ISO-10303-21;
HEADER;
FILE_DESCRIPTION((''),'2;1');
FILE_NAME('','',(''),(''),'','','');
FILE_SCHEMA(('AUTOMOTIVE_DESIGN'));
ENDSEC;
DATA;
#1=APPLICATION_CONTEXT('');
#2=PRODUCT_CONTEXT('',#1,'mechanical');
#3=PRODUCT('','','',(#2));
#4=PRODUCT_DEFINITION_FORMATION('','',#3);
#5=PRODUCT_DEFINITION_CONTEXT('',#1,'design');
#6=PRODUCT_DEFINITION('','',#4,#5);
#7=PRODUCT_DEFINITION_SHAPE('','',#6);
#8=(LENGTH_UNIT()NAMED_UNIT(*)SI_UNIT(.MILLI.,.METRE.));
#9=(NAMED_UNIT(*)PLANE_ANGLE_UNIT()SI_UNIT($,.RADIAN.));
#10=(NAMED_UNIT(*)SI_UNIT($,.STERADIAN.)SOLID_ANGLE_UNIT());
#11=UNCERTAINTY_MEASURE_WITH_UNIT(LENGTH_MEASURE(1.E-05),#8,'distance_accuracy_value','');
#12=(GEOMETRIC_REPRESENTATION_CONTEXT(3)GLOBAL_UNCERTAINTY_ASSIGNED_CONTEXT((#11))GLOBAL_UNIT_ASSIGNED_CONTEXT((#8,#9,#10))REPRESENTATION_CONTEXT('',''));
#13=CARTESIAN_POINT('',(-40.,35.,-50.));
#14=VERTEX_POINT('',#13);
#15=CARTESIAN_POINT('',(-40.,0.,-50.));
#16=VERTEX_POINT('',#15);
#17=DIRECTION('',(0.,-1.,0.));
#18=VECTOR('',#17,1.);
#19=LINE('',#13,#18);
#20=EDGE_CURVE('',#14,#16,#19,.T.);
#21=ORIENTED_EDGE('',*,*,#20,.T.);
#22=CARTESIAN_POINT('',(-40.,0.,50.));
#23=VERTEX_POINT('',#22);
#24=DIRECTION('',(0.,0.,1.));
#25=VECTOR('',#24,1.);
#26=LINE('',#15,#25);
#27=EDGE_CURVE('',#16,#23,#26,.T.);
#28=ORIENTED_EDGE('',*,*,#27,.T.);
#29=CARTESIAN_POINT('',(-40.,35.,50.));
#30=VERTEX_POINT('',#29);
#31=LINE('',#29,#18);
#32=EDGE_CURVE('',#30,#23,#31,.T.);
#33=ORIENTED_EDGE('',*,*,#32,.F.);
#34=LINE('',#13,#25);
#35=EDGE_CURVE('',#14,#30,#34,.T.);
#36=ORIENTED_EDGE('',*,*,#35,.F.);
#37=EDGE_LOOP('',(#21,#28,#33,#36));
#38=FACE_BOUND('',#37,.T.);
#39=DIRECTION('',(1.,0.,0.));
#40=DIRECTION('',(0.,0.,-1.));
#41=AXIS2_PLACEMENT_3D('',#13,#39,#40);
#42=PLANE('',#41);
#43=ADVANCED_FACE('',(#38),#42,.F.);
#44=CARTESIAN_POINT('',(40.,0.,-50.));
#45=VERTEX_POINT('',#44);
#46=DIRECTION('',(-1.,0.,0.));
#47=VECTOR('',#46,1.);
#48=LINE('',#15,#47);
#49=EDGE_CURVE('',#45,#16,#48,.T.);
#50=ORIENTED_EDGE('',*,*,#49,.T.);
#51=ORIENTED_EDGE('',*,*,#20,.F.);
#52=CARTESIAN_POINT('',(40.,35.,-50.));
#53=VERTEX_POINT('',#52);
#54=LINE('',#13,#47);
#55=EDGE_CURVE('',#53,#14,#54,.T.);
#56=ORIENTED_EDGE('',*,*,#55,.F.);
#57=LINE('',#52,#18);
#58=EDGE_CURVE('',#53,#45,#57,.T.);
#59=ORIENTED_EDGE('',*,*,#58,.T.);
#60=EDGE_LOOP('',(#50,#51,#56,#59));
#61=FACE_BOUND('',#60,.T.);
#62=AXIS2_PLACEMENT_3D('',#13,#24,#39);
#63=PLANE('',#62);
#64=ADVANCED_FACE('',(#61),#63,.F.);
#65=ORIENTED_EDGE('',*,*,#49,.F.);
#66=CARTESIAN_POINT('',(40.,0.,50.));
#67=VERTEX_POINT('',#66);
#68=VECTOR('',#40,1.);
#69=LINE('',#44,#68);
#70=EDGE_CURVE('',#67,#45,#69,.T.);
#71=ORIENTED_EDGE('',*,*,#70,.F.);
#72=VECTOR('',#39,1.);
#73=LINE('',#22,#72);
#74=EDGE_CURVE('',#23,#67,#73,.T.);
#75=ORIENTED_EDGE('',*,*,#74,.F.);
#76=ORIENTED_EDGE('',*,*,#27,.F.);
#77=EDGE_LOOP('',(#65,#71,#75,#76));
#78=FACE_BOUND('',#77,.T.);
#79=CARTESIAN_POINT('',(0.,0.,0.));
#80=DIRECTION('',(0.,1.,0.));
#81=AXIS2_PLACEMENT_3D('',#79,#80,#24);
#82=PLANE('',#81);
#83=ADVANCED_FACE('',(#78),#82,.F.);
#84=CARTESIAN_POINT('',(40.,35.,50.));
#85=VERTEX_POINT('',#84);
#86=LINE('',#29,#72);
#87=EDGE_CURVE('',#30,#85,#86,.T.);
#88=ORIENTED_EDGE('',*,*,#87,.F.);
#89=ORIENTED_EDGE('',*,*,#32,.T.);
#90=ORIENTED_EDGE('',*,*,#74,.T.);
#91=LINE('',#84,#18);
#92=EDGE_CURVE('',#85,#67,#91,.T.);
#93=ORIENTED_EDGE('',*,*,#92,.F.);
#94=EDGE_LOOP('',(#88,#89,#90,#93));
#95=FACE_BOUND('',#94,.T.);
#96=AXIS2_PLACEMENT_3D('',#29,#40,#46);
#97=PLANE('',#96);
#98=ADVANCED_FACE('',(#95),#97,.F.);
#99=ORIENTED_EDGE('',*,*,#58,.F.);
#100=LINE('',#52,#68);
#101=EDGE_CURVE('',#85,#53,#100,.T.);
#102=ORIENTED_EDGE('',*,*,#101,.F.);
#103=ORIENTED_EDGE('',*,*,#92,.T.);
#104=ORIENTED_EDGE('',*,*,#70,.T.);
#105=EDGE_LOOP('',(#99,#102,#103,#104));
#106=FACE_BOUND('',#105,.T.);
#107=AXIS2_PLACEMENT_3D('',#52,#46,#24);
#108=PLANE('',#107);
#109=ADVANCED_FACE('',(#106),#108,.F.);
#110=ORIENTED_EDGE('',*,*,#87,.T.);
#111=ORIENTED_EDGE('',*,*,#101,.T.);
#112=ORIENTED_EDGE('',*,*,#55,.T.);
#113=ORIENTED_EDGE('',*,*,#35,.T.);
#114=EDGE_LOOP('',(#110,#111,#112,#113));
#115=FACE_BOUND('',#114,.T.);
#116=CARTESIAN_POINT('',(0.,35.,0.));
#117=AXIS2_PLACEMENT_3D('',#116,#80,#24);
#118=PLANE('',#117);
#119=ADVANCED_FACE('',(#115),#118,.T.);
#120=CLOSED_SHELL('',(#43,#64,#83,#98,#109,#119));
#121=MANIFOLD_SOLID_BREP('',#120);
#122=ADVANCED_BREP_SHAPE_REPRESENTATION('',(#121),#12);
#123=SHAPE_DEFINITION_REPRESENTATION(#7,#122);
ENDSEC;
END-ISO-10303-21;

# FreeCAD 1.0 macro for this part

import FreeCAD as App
import Part
import Sketcher

V = App.Vector
Q = App.Units.Quantity

doc = App.newDocument("Part")
params = doc.addObject("Spreadsheet::Sheet", "Params")
for row, (alias, value) in enumerate([
    ("sketch1_width", "80 mm"),
    ("sketch1_height", "100 mm"),
    ("pad1_length", "35 mm"),
], start=1):
    params.set(f"A{row}", alias)
    params.set(f"B{row}", "=" + value)
    params.setAlias(f"B{row}", alias)

body = doc.addObject("PartDesign::Body", "Body")

# Sketch on XZ plane
sketch1 = body.newObject("Sketcher::SketchObject", "Sketch")
sketch1.AttachmentSupport = (doc.getObject("XZ_Plane"), [""])
sketch1.MapMode = "FlatFace"
sketch1.addGeometry([
    Part.LineSegment(V(-40, -50, 0), V(-40, 50, 0)),
    Part.LineSegment(V(-40, 50, 0), V(40, 50, 0)),
    Part.LineSegment(V(40, 50, 0), V(40, -50, 0)),
    Part.LineSegment(V(40, -50, 0), V(-40, -50, 0)),
], False)
sketch1.addConstraint([
    Sketcher.Constraint("Coincident", 0, 2, 1, 1),
    Sketcher.Constraint("Coincident", 1, 2, 2, 1),
    Sketcher.Constraint("Coincident", 2, 2, 3, 1),
    Sketcher.Constraint("Coincident", 3, 2, 0, 1),
    Sketcher.Constraint("Vertical", 0),
    Sketcher.Constraint("Horizontal", 1),
    Sketcher.Constraint("Vertical", 2),
    Sketcher.Constraint("Horizontal", 3),
    Sketcher.Constraint("Symmetric", 0, 2, 2, 2, -1, 1),
    Sketcher.Constraint("DistanceX", 1, 1, 1, 2, Q("80 mm")),
    Sketcher.Constraint("DistanceY", 0, 1, 0, 2, Q("100 mm")),
])
sketch1.setExpression("Constraints[9]", "Params.sketch1_width")
sketch1.setExpression("Constraints[10]", "Params.sketch1_height")
pad1 = body.newObject("PartDesign::Pad", "Pad")
pad1.Profile = sketch1
pad1.setExpression("Length", "Params.pad1_length")
pad1.Reversed = True

doc.recompute()
